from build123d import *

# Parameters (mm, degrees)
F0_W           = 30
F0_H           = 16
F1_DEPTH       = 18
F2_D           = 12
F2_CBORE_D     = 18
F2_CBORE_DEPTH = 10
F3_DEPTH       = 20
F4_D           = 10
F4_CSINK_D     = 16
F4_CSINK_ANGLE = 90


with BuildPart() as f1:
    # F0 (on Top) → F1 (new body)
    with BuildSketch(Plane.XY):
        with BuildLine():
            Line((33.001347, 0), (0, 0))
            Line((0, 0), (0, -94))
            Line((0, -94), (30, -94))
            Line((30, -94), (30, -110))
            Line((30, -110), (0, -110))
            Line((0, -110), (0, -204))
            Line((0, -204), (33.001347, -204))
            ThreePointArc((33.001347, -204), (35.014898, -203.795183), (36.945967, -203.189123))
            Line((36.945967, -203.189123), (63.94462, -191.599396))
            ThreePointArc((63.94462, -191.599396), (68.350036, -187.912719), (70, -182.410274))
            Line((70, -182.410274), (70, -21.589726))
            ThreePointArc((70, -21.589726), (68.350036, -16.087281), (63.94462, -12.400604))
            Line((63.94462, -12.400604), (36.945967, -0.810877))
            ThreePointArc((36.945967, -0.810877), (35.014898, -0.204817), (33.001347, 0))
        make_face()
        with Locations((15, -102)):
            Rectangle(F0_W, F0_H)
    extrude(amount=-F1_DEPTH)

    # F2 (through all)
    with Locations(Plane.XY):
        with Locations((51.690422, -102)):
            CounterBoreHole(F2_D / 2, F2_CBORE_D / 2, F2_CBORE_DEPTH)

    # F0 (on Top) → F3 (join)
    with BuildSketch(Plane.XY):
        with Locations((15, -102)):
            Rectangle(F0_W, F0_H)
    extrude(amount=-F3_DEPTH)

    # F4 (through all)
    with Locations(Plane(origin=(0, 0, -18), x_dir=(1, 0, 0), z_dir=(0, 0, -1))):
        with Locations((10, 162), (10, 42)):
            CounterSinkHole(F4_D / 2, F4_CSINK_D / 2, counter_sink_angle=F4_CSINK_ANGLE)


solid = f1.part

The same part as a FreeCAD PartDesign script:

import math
import FreeCAD as App
import Part
import Sketcher

V = App.Vector


def add_polygon(sketch, points):
    """Adds a closed chain of lines whose ends are joined by coincident constraints."""
    first, n = sketch.GeometryCount, len(points)
    for a, b in zip(points, points[1:] + points[:1]):
        sketch.addGeometry(Part.LineSegment(App.Vector(*a, 0), App.Vector(*b, 0)), False)
    for i in range(n):
        sketch.addConstraint(Sketcher.Constraint("Coincident", first + i, 2, first + (i + 1) % n, 1))

doc = App.newDocument("Part")
params = doc.addObject("Spreadsheet::Sheet", "Params")
for row, (alias, value) in enumerate([
    ("sketch1_height", "204 mm"),
    ("pad1_length", "18 mm"),
    ("sketch2_diameter", "12 mm"),
    ("hole_diameter", "12 mm"),
    ("hole_cbore_diameter", "18 mm"),
    ("hole_cbore_depth", "10 mm"),
    ("sketch3_width", "30 mm"),
    ("sketch3_height", "16 mm"),
    ("pad2_length", "20 mm"),
    ("sketch4_diameter", "10 mm"),
    ("hole2_diameter", "10 mm"),
    ("hole2_csink_diameter", "16 mm"),
], start=1):
    params.set(f"A{row}", alias)
    params.set(f"B{row}", "=" + value)
    params.setAlias(f"B{row}", alias)

body = doc.addObject("PartDesign::Body", "Body")

# Sketch on XY plane
sketch1 = body.newObject("Sketcher::SketchObject", "Sketch")
sketch1.AttachmentSupport = (doc.getObject("XY_Plane"), [""])
sketch1.MapMode = "FlatFace"
sketch1.addGeometry(Part.LineSegment(V(33, 0, 0), V(0, 0, 0)), False)
sketch1.addGeometry(Part.LineSegment(V(0, 0, 0), V(0, -204, 0)), False)
sketch1.addGeometry(Part.LineSegment(V(0, -204, 0), V(33, -204, 0)), False)
sketch1.addGeometry(Part.ArcOfCircle(Part.Circle(V(33, -194, 0), V(0, 0, 1), 10), math.radians(-90), math.radians(-67)), False)
sketch1.addGeometry(Part.LineSegment(V(36.9, -203.2, 0), V(63.9, -191.6, 0)), False)
sketch1.addGeometry(Part.ArcOfCircle(Part.Circle(V(60, -182.4, 0), V(0, 0, 1), 10), math.radians(-67), math.radians(0)), False)
sketch1.addGeometry(Part.LineSegment(V(70, -182.4, 0), V(70, -21.6, 0)), False)
sketch1.addGeometry(Part.ArcOfCircle(Part.Circle(V(60, -21.6, 0), V(0, 0, 1), 10), math.radians(0), math.radians(67)), False)
sketch1.addGeometry(Part.LineSegment(V(63.9, -12.4, 0), V(36.9, -0.8, 0)), False)
sketch1.addGeometry(Part.ArcOfCircle(Part.Circle(V(33, -10, 0), V(0, 0, 1), 10), math.radians(67), math.radians(90)), False)
sketch1.addConstraint(Sketcher.Constraint("Coincident", 0, 2, 1, 1))
sketch1.addConstraint(Sketcher.Constraint("Coincident", 1, 2, 2, 1))
sketch1.addConstraint(Sketcher.Constraint("Tangent", 2, 2, 3, 1))
sketch1.addConstraint(Sketcher.Constraint("Tangent", 3, 2, 4, 1))
sketch1.addConstraint(Sketcher.Constraint("Tangent", 4, 2, 5, 1))
sketch1.addConstraint(Sketcher.Constraint("Tangent", 5, 2, 6, 1))
sketch1.addConstraint(Sketcher.Constraint("Tangent", 6, 2, 7, 1))
sketch1.addConstraint(Sketcher.Constraint("Tangent", 7, 2, 8, 1))
sketch1.addConstraint(Sketcher.Constraint("Tangent", 8, 2, 9, 1))
sketch1.addConstraint(Sketcher.Constraint("Tangent", 9, 2, 0, 1))
sketch1.addConstraint(Sketcher.Constraint("Horizontal", 0))
sketch1.addConstraint(Sketcher.Constraint("Vertical", 1))
sketch1.addConstraint(Sketcher.Constraint("Horizontal", 2))
sketch1.addConstraint(Sketcher.Constraint("Vertical", 6))
sketch1.addConstraint(Sketcher.Constraint("Coincident", 0, 2, -1, 1))
sketch1.addConstraint(Sketcher.Constraint("Equal", 5, 7))
sketch1.addConstraint(Sketcher.Constraint("Equal", 3, 9))
sketch1.addConstraint(Sketcher.Constraint("Vertical", 3, 3, 9, 3))
sketch1.addConstraint(Sketcher.Constraint("Vertical", 4, 2, 7, 2))
sketch1.addConstraint(Sketcher.Constraint("DistanceY", 1, 2, 1, 1, 204.0))
sketch1.addConstraint(Sketcher.Constraint("DistanceX", -1, 1, 5, 2, 70.0))
sketch1.addConstraint(Sketcher.Constraint("Radius", 3, 10.000016))
sketch1.addConstraint(Sketcher.Constraint("Radius", 5, 9.999998))
sketch1.addConstraint(Sketcher.Constraint("Distance", 4, 29.3811))
sketch1.addConstraint(Sketcher.Constraint("DistanceX", 0, 2, 0, 1, 33.001347))
sketch1.setExpression("Constraints[19]", "Params.sketch1_height")
pad1 = body.newObject("PartDesign::Pad", "Pad")
pad1.Profile = sketch1
pad1.setExpression("Length", "Params.pad1_length")
pad1.Reversed = True

# Sketch on XY plane
sketch2 = body.newObject("Sketcher::SketchObject", "Sketch001")
sketch2.AttachmentSupport = (doc.getObject("XY_Plane"), [""])
sketch2.MapMode = "FlatFace"
sketch2.addGeometry(Part.Circle(V(52, -102, 0), V(0, 0, 1), 6), False)
sketch2.addConstraint(Sketcher.Constraint("Diameter", 0, 12.0))
sketch2.addConstraint(Sketcher.Constraint("DistanceY", 0, 3, -1, 1, 102.0))
sketch2.addConstraint(Sketcher.Constraint("DistanceX", -1, 1, 0, 3, 51.690422))
sketch2.setExpression("Constraints[0]", "Params.sketch2_diameter")
doc.recompute()
hole = body.newObject("PartDesign::Hole", "Hole")
hole.Profile = sketch2
hole.ThreadType = "None"
hole.setExpression("Diameter", "Params.hole_diameter")
hole.DepthType = "ThroughAll"
hole.HoleCutType = "Counterbore"
hole.setExpression("HoleCutDiameter", "Params.hole_cbore_diameter")
hole.setExpression("HoleCutDepth", "Params.hole_cbore_depth")

# Sketch on XY plane
sketch3 = body.newObject("Sketcher::SketchObject", "Sketch002")
sketch3.AttachmentSupport = (doc.getObject("XY_Plane"), [""])
sketch3.MapMode = "FlatFace"
add_polygon(sketch3, [(0, -94), (0, -110), (30, -110), (30, -94)])  # lines 0-3
sketch3.addConstraint(Sketcher.Constraint("Vertical", 0))
sketch3.addConstraint(Sketcher.Constraint("Horizontal", 1))
sketch3.addConstraint(Sketcher.Constraint("Vertical", 2))
sketch3.addConstraint(Sketcher.Constraint("Horizontal", 3))
sketch3.addConstraint(Sketcher.Constraint("PointOnObject", 0, 2, -2))
sketch3.addConstraint(Sketcher.Constraint("DistanceX", 1, 1, 1, 2, 30.0))
sketch3.addConstraint(Sketcher.Constraint("DistanceY", 0, 2, 0, 1, 16.0))
sketch3.addConstraint(Sketcher.Constraint("DistanceY", 0, 2, -1, 1, 110.0))
sketch3.setExpression("Constraints[9]", "Params.sketch3_width")
sketch3.setExpression("Constraints[10]", "Params.sketch3_height")
pad2 = body.newObject("PartDesign::Pad", "Pad001")
pad2.Profile = sketch3
pad2.setExpression("Length", "Params.pad2_length")
pad2.Reversed = True

# Sketch on XY plane
sketch4 = body.newObject("Sketcher::SketchObject", "Sketch003")
sketch4.AttachmentSupport = (doc.getObject("XY_Plane"), [""])
sketch4.MapMode = "FlatFace"
sketch4.AttachmentOffset = App.Placement(V(0, 0, -18), App.Rotation())
sketch4.addGeometry(Part.Circle(V(10, -162, 0), V(0, 0, 1), 5), False)
sketch4.addGeometry(Part.Circle(V(10, -42, 0), V(0, 0, 1), 5), False)
sketch4.addConstraint(Sketcher.Constraint("Equal", 0, 1))
sketch4.addConstraint(Sketcher.Constraint("Vertical", 0, 3, 1, 3))
sketch4.addConstraint(Sketcher.Constraint("Diameter", 0, 10.0))
sketch4.addConstraint(Sketcher.Constraint("DistanceX", -1, 1, 0, 3, 10.0))
sketch4.addConstraint(Sketcher.Constraint("DistanceY", 0, 3, -1, 1, 162.0))
sketch4.addConstraint(Sketcher.Constraint("DistanceY", 1, 3, -1, 1, 42.0))
sketch4.setExpression("Constraints[2]", "Params.sketch4_diameter")
doc.recompute()
hole2 = body.newObject("PartDesign::Hole", "Hole001")
hole2.Profile = sketch4
hole2.ThreadType = "None"
hole2.setExpression("Diameter", "Params.hole2_diameter")
hole2.DepthType = "ThroughAll"
hole2.HoleCutType = "Countersink"
hole2.setExpression("HoleCutDiameter", "Params.hole2_csink_diameter")
hole2.HoleCutCountersinkAngle = 90
hole2.Reversed = True

doc.recompute()
